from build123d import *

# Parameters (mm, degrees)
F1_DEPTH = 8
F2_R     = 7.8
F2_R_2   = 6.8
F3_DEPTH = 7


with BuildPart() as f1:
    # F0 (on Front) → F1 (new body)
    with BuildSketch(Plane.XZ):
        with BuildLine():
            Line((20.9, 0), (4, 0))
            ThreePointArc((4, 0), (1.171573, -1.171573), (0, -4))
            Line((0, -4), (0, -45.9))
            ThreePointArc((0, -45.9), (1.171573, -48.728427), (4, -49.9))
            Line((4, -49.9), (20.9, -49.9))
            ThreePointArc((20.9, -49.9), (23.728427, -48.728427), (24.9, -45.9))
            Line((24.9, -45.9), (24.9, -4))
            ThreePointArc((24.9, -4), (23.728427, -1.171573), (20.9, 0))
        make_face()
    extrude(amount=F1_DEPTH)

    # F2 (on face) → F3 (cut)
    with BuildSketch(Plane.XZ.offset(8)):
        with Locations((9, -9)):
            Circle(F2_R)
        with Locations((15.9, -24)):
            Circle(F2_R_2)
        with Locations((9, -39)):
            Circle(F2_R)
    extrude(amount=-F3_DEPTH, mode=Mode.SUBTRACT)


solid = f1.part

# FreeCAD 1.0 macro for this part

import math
import FreeCAD as App
import Part
import Sketcher
Q = App.Units.Quantity

doc = App.newDocument("Part")
body = doc.addObject("PartDesign::Body", "Body")

# Sketch on XZ plane
sketch1 = body.newObject("Sketcher::SketchObject", "Sketch")
sketch1.AttachmentSupport = (doc.getObject("XZ_Plane"), [""])
sketch1.MapMode = "FlatFace"
sketch1.addGeometry([
    Part.LineSegment(App.Vector(20.9, 0, 0), App.Vector(4, 0, 0)),  # 0
    Part.ArcOfCircle(Part.Circle(App.Vector(4, -4, 0), App.Vector(0, 0, 1), 4), math.radians(90), math.radians(180)),  # 1
    Part.LineSegment(App.Vector(0, -4, 0), App.Vector(0, -45.9, 0)),  # 2
    Part.ArcOfCircle(Part.Circle(App.Vector(4, -45.9, 0), App.Vector(0, 0, 1), 4), math.radians(-180), math.radians(-90)),  # 3
    Part.LineSegment(App.Vector(4, -49.9, 0), App.Vector(20.9, -49.9, 0)),  # 4
    Part.ArcOfCircle(Part.Circle(App.Vector(20.9, -45.9, 0), App.Vector(0, 0, 1), 4), math.radians(-90), math.radians(0)),  # 5
    Part.LineSegment(App.Vector(24.9, -45.9, 0), App.Vector(24.9, -4, 0)),  # 6
    Part.ArcOfCircle(Part.Circle(App.Vector(20.9, -4, 0), App.Vector(0, 0, 1), 4), math.radians(0), math.radians(90)),  # 7
], False)
sketch1.addConstraint([
    Sketcher.Constraint("Tangent", 0, 2, 1, 1),
    Sketcher.Constraint("Tangent", 1, 2, 2, 1),
    Sketcher.Constraint("Tangent", 2, 2, 3, 1),
    Sketcher.Constraint("Tangent", 3, 2, 4, 1),
    Sketcher.Constraint("Tangent", 4, 2, 5, 1),
    Sketcher.Constraint("Tangent", 5, 2, 6, 1),
    Sketcher.Constraint("Tangent", 6, 2, 7, 1),
    Sketcher.Constraint("Tangent", 7, 2, 0, 1),
    Sketcher.Constraint("Horizontal", 0),
    Sketcher.Constraint("Vertical", 2),
    Sketcher.Constraint("Horizontal", 4),
    Sketcher.Constraint("Vertical", 6),
    Sketcher.Constraint("Equal", 1, 3),
    Sketcher.Constraint("Equal", 3, 5),
    Sketcher.Constraint("Equal", 5, 7),
    Sketcher.Constraint("PointOnObject", 0, 2, -1),
    Sketcher.Constraint("PointOnObject", 1, 2, -2),
    Sketcher.Constraint("Radius", 1, Q("4 mm")),
    Sketcher.Constraint("DistanceX", 0, 2, 0, 1, Q("16.9 mm")),
    Sketcher.Constraint("DistanceY", 2, 2, 2, 1, Q("41.9 mm")),
])
pad1 = body.newObject("PartDesign::Pad", "Pad")
pad1.Profile = sketch1
pad1.Length = 8

# Sketch on XZ plane
sketch2 = body.newObject("Sketcher::SketchObject", "Sketch001")
sketch2.AttachmentSupport = (doc.getObject("XZ_Plane"), [""])
sketch2.MapMode = "FlatFace"
sketch2.AttachmentOffset = App.Placement(App.Vector(0, 0, 8), App.Rotation())
sketch2.addGeometry([
    Part.Circle(App.Vector(9, -9, 0), App.Vector(0, 0, 1), 8),
    Part.Circle(App.Vector(16, -24, 0), App.Vector(0, 0, 1), 7),
    Part.Circle(App.Vector(9, -39, 0), App.Vector(0, 0, 1), 8),
], False)
sketch2.addConstraint([
    Sketcher.Constraint("Equal", 0, 2),
    Sketcher.Constraint("Vertical", 0, 3, 2, 3),
    Sketcher.Constraint("Diameter", 0, Q("15.6 mm")),
    Sketcher.Constraint("Diameter", 1, Q("13.6 mm")),
    Sketcher.Constraint("DistanceX", -1, 1, 0, 3, Q("9 mm")),
    Sketcher.Constraint("DistanceY", 0, 3, -1, 1, Q("9 mm")),
    Sketcher.Constraint("DistanceY", 1, 3, -1, 1, Q("24 mm")),
    Sketcher.Constraint("DistanceY", 2, 3, -1, 1, Q("39 mm")),
    Sketcher.Constraint("DistanceX", -1, 1, 1, 3, Q("15.9 mm")),
])
pocket1 = body.newObject("PartDesign::Pocket", "Pocket")
pocket1.Profile = sketch2
pocket1.Length = 7

doc.recompute()
